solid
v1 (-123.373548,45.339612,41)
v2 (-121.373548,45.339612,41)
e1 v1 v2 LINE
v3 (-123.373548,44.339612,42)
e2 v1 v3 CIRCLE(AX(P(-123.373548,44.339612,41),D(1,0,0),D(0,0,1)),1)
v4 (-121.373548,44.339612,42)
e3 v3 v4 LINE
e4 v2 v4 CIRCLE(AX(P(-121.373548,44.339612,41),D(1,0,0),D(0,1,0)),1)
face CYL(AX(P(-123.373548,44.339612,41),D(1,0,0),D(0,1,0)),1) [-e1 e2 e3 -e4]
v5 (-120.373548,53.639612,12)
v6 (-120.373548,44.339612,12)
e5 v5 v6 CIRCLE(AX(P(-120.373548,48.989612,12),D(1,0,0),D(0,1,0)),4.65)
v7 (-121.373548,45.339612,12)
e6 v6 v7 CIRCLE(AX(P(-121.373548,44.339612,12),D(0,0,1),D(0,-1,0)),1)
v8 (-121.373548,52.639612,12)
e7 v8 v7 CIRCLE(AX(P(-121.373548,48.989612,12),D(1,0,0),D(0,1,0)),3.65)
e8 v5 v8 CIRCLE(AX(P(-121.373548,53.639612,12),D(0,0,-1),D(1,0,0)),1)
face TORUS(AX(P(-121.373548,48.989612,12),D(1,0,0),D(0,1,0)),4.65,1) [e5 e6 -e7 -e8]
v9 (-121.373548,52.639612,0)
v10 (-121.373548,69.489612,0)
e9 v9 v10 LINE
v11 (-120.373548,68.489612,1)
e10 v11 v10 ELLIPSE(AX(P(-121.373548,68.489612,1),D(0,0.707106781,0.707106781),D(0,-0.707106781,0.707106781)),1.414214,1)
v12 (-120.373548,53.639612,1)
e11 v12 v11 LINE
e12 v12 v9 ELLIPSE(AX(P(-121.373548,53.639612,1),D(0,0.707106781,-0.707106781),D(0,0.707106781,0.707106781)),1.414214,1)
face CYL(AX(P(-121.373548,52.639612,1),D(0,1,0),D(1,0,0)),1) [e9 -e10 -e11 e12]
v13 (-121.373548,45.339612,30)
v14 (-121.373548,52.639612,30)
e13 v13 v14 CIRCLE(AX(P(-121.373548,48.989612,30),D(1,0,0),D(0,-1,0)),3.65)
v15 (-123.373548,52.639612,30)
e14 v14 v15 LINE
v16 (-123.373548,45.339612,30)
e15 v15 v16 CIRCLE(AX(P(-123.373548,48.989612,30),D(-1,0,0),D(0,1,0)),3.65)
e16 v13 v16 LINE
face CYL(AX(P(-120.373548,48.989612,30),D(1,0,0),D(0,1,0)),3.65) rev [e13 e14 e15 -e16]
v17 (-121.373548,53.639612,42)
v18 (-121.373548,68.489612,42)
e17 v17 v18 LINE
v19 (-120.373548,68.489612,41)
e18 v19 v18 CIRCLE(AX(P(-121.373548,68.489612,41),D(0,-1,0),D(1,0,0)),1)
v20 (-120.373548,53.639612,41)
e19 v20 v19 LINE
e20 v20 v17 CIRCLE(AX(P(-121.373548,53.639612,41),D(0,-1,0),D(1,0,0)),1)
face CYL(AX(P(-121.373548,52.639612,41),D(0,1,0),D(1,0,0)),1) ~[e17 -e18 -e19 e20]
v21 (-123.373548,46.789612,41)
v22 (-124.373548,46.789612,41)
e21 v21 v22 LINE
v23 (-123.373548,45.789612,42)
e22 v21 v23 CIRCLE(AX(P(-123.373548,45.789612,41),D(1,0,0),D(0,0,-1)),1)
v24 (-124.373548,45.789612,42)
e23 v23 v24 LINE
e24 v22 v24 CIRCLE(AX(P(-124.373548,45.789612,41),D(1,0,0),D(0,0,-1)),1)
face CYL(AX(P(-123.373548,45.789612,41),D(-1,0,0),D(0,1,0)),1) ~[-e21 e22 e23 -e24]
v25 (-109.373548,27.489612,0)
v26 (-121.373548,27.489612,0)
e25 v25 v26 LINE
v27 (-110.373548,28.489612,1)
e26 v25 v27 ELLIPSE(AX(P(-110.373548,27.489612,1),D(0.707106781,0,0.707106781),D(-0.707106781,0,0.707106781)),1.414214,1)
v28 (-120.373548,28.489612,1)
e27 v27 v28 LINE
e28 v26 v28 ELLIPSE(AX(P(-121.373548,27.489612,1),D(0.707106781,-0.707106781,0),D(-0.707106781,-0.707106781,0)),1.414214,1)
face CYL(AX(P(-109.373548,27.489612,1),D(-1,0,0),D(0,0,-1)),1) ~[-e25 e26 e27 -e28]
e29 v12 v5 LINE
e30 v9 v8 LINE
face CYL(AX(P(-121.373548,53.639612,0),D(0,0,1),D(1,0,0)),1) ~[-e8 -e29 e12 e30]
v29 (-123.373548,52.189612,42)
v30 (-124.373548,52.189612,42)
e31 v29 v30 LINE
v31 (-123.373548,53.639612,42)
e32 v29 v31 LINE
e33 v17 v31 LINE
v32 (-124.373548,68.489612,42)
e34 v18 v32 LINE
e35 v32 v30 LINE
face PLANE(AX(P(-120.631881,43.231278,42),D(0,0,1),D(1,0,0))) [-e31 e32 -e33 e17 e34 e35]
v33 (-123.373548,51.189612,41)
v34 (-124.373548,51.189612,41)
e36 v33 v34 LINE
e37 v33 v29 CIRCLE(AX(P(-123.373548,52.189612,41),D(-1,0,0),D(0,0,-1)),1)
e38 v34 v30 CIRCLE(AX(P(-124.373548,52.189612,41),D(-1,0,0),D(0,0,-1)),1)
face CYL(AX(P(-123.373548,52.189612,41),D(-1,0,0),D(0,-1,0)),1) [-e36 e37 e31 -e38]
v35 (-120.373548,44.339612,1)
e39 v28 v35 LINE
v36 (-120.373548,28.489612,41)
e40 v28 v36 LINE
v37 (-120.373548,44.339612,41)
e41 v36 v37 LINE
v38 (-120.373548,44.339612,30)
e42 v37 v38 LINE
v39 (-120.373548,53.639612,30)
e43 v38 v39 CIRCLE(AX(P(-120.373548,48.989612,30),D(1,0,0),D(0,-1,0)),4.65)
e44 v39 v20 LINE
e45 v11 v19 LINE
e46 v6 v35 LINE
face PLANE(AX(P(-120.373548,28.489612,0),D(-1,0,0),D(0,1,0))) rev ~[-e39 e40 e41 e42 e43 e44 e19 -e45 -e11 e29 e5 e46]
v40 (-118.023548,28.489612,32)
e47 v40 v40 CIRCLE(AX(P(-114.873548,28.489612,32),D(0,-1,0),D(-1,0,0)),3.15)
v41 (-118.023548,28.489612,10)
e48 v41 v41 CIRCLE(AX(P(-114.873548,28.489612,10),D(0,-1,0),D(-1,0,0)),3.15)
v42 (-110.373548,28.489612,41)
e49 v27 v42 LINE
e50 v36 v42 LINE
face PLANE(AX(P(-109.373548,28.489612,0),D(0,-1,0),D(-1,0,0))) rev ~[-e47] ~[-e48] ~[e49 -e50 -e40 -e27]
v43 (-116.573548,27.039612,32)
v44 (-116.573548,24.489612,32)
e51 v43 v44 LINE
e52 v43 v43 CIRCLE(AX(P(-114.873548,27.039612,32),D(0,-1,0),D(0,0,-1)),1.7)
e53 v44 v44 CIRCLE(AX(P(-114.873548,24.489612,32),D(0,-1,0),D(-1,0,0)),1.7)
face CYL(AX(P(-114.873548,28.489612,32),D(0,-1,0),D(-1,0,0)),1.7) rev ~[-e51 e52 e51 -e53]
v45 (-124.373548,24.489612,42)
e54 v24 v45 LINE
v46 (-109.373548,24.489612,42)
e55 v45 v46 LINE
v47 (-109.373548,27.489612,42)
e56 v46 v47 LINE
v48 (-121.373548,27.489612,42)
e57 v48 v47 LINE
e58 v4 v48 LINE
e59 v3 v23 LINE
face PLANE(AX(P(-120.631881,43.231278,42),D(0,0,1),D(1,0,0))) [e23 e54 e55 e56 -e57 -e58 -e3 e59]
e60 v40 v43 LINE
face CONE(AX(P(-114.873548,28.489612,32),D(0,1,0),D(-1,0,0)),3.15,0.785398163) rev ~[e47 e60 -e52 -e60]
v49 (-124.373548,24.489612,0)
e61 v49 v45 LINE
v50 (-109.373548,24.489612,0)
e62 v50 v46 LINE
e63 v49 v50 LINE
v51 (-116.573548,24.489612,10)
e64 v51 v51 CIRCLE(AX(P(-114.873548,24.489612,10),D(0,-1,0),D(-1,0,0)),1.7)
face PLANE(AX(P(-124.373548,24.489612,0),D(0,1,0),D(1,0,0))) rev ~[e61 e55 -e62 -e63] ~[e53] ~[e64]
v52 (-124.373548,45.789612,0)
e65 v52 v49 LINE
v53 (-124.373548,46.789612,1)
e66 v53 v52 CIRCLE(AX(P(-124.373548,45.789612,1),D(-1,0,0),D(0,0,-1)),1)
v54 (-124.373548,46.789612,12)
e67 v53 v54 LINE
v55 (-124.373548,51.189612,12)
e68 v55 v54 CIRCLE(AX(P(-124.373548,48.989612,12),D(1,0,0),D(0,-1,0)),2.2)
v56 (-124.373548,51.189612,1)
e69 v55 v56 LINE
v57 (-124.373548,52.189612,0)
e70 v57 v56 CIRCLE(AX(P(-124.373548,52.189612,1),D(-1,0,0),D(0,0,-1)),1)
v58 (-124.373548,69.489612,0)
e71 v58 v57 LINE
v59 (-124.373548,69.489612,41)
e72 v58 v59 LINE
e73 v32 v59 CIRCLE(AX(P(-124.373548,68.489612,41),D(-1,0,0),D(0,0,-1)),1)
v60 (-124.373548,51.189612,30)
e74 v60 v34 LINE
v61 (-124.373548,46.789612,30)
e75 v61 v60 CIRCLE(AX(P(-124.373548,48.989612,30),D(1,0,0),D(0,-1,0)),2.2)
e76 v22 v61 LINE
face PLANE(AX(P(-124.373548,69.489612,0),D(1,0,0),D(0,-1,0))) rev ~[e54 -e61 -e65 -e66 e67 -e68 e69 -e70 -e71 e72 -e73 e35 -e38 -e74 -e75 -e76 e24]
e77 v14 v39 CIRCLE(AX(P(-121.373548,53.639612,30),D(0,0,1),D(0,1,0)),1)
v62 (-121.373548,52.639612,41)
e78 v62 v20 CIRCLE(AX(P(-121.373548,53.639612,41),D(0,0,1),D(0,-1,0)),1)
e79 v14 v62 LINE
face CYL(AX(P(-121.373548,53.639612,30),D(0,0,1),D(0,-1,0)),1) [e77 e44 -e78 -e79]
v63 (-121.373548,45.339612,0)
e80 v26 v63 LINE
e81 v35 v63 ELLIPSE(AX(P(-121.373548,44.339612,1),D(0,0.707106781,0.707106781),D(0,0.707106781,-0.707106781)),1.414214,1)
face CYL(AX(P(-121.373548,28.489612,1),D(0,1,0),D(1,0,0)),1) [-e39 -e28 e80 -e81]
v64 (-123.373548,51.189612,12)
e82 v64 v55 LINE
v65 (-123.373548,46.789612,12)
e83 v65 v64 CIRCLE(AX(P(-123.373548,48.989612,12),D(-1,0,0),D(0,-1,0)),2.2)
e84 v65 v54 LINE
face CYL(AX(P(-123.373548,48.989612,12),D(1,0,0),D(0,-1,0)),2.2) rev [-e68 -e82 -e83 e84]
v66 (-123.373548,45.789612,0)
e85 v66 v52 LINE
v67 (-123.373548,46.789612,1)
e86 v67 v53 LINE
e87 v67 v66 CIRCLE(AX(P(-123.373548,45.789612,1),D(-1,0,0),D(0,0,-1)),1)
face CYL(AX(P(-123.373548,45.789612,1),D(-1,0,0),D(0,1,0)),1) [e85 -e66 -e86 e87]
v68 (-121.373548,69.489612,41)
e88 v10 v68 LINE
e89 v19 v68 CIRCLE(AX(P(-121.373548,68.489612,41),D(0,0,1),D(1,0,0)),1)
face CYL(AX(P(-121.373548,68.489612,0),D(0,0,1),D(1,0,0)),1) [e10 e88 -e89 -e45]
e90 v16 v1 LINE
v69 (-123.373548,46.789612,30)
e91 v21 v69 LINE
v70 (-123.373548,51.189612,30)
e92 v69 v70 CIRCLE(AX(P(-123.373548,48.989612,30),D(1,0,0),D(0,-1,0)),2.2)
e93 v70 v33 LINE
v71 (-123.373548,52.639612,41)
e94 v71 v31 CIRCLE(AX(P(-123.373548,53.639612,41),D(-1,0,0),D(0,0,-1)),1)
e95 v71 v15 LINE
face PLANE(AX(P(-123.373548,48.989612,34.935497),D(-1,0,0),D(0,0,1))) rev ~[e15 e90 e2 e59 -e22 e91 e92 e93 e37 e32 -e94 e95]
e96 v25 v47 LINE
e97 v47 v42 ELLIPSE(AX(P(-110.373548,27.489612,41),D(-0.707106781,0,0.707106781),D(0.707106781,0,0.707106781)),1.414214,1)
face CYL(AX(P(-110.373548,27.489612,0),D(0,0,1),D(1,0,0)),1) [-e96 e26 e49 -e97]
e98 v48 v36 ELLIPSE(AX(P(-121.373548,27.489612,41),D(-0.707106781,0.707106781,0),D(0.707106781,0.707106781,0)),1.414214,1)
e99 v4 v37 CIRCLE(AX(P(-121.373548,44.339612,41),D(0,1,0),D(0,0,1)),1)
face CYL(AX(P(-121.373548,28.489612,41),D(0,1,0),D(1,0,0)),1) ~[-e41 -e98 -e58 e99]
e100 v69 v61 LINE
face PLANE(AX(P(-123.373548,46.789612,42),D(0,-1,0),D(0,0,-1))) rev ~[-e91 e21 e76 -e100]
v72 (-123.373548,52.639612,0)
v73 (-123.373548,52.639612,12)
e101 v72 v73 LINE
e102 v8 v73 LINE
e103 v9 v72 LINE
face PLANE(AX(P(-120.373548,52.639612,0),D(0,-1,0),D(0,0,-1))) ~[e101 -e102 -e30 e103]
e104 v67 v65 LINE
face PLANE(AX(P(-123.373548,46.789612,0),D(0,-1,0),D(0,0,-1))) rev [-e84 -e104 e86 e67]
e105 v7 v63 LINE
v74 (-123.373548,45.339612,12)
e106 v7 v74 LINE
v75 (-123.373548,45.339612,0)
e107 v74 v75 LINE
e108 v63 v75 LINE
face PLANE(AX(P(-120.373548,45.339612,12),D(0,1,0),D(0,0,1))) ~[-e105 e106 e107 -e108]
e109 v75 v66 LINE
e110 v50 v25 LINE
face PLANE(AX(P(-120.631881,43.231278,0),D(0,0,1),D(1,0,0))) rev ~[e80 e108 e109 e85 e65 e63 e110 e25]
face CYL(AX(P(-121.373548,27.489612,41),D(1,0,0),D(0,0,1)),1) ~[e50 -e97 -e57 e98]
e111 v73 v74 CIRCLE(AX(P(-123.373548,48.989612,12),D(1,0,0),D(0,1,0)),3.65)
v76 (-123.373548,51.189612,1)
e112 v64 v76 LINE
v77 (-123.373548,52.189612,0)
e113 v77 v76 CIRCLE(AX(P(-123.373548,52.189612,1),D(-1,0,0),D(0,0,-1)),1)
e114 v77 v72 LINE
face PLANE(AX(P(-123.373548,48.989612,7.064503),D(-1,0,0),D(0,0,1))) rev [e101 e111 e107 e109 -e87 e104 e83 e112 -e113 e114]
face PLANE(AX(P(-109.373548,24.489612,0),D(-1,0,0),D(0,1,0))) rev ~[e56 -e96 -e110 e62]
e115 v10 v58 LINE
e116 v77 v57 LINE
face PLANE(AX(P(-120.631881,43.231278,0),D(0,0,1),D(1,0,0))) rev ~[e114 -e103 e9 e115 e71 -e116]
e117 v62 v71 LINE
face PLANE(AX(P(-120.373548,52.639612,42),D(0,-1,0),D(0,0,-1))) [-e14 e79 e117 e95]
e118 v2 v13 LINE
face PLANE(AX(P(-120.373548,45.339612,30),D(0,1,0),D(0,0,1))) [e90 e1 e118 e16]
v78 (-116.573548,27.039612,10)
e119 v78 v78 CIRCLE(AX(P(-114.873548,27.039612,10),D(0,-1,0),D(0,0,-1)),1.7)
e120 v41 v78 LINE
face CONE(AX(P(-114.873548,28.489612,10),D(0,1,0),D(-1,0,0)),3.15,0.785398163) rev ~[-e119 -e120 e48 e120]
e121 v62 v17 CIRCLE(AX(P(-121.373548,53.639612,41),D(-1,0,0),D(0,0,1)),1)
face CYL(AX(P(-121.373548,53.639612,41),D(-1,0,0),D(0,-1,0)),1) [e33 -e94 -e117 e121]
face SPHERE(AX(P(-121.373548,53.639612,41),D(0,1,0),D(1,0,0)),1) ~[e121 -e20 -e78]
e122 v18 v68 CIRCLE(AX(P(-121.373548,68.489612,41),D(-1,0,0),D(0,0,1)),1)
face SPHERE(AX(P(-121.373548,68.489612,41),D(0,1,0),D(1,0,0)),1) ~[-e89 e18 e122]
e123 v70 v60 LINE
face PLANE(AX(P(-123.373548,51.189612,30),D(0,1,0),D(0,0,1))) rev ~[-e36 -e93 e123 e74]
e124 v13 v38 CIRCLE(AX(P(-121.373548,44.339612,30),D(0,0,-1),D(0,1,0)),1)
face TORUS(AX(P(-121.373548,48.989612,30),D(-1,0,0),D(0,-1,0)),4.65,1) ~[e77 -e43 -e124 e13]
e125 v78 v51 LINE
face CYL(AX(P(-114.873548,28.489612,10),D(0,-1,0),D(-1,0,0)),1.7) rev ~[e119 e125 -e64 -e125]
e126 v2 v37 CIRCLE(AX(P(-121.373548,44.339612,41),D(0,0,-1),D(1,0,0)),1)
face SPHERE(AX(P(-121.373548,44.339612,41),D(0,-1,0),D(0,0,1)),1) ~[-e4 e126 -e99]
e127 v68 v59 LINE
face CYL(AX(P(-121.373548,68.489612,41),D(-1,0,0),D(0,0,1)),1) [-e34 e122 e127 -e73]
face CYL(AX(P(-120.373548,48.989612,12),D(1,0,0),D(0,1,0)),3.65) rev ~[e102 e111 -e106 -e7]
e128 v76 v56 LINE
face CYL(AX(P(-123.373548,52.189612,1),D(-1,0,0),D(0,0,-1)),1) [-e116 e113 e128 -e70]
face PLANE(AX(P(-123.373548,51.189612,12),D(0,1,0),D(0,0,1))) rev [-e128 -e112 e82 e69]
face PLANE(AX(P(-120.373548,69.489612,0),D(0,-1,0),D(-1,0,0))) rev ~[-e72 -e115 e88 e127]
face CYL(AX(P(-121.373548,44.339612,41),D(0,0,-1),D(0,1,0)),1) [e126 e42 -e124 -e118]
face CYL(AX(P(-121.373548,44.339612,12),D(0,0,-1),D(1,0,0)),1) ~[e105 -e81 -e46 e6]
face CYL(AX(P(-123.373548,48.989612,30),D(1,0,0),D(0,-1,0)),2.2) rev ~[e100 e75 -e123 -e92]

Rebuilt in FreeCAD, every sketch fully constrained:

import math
import FreeCAD as App
import Part
import Sketcher
Q = App.Units.Quantity


def edges_at(feature, points):
    """Names of the edges that pass closest to the given points."""
    edges = feature.Shape.Edges
    near = lambda p: min(range(len(edges)), key=lambda i: edges[i].distToShape(Part.Vertex(*p))[0])
    return sorted({f"Edge{near(p) + 1}" for p in points})


def add_polygon(sketch, points):
    """Adds a closed chain of lines whose ends are joined by coincident constraints."""
    first, n = sketch.GeometryCount, len(points)
    for a, b in zip(points, points[1:] + points[:1]):
        sketch.addGeometry(Part.LineSegment(App.Vector(*a, 0), App.Vector(*b, 0)), False)
    for i in range(n):
        sketch.addConstraint(Sketcher.Constraint("Coincident", first + i, 2, first + (i + 1) % n, 1))

doc = App.newDocument("Part")
body = doc.addObject("PartDesign::Body", "Body")

# Sketch on XY plane
sketch1 = doc.addObject("Sketcher::SketchObject", "Sketch")
body.addObject(sketch1)
sketch1.AttachmentSupport = (doc.XY_Plane, [""])
sketch1.MapMode = "FlatFace"
add_polygon(sketch1, [(-124.4, 69.5), (-124.4, 24.5), (-109.4, 24.5), (-109.4, 28.5), (-120.4, 28.5), (-120.4, 69.5)])  # lines 0-5
sketch1.addConstraint(Sketcher.Constraint("Vertical", 0))
sketch1.addConstraint(Sketcher.Constraint("Horizontal", 1))
sketch1.addConstraint(Sketcher.Constraint("Vertical", 2))
sketch1.addConstraint(Sketcher.Constraint("Horizontal", 3))
sketch1.addConstraint(Sketcher.Constraint("Vertical", 4))
sketch1.addConstraint(Sketcher.Constraint("Horizontal", 5))
sketch1.addConstraint(Sketcher.Constraint("Equal", 5, 2))
sketch1.addConstraint(Sketcher.Constraint("DistanceX", 1, 1, 1, 2, Q("15 mm")))
sketch1.addConstraint(Sketcher.Constraint("DistanceX", 3, 2, 3, 1, Q("11 mm")))
sketch1.addConstraint(Sketcher.Constraint("DistanceY", 0, 2, 0, 1, Q("45 mm")))
sketch1.addConstraint(Sketcher.Constraint("DistanceX", 0, 2, -1, 1, Q("124.373548 mm")))
sketch1.addConstraint(Sketcher.Constraint("DistanceY", -1, 1, 0, 2, Q("24.489612 mm")))
pad1 = doc.addObject("PartDesign::Pad", "Pad")
body.addObject(pad1)
pad1.Profile = sketch1
pad1.Length = 42

# Sketch on YZ plane
sketch2 = doc.addObject("Sketcher::SketchObject", "Sketch001")
body.addObject(sketch2)
sketch2.AttachmentSupport = (doc.YZ_Plane, [""])
sketch2.MapMode = "FlatFace"
sketch2.AttachmentOffset = App.Placement(App.Vector(0, 0, -120.373548), App.Rotation())
sketch2.addGeometry(Part.LineSegment(App.Vector(52.6, 30, 0), App.Vector(52.6, 42, 0)), False)
sketch2.addGeometry(Part.LineSegment(App.Vector(52.6, 42, 0), App.Vector(45.3, 42, 0)), False)
sketch2.addGeometry(Part.LineSegment(App.Vector(45.3, 42, 0), App.Vector(45.3, 30, 0)), False)
sketch2.addGeometry(Part.ArcOfCircle(Part.Circle(App.Vector(49, 30, 0), App.Vector(0, 0, 1), 3.6), math.radians(180), math.radians(360)), False)
sketch2.addConstraint(Sketcher.Constraint("Coincident", 0, 2, 1, 1))
sketch2.addConstraint(Sketcher.Constraint("Coincident", 1, 2, 2, 1))
sketch2.addConstraint(Sketcher.Constraint("Tangent", 2, 2, 3, 1))
sketch2.addConstraint(Sketcher.Constraint("Tangent", 3, 2, 0, 1))
sketch2.addConstraint(Sketcher.Constraint("Vertical", 0))
sketch2.addConstraint(Sketcher.Constraint("Horizontal", 1))
sketch2.addConstraint(Sketcher.Constraint("Vertical", 2))
sketch2.addConstraint(Sketcher.Constraint("DistanceY", 0, 1, 0, 2, Q("12 mm")))
sketch2.addConstraint(Sketcher.Constraint("Radius", 3, Q("3.65 mm")))
sketch2.addConstraint(Sketcher.Constraint("DistanceY", -1, 1, 3, 3, Q("30 mm")))
sketch2.addConstraint(Sketcher.Constraint("DistanceX", -1, 1, 3, 3, Q("48.989612 mm")))
pocket1 = doc.addObject("PartDesign::Pocket", "Pocket")
body.addObject(pocket1)
pocket1.Profile = sketch2
pocket1.Length = 3

# Sketch on YZ plane
sketch3 = doc.addObject("Sketcher::SketchObject", "Sketch002")
body.addObject(sketch3)
sketch3.AttachmentSupport = (doc.YZ_Plane, [""])
sketch3.MapMode = "FlatFace"
sketch3.AttachmentOffset = App.Placement(App.Vector(0, 0, -123.373548), App.Rotation())
sketch3.addGeometry(Part.LineSegment(App.Vector(51.2, 42, 0), App.Vector(46.8, 42, 0)), False)
sketch3.addGeometry(Part.LineSegment(App.Vector(46.8, 42, 0), App.Vector(46.8, 30, 0)), False)
sketch3.addGeometry(Part.ArcOfCircle(Part.Circle(App.Vector(49, 30, 0), App.Vector(0, 0, 1), 2.2), math.radians(180), math.radians(360)), False)
sketch3.addGeometry(Part.LineSegment(App.Vector(51.2, 30, 0), App.Vector(51.2, 42, 0)), False)
sketch3.addConstraint(Sketcher.Constraint("Coincident", 0, 2, 1, 1))
sketch3.addConstraint(Sketcher.Constraint("Tangent", 1, 2, 2, 1))
sketch3.addConstraint(Sketcher.Constraint("Tangent", 2, 2, 3, 1))
sketch3.addConstraint(Sketcher.Constraint("Coincident", 3, 2, 0, 1))
sketch3.addConstraint(Sketcher.Constraint("Horizontal", 0))
sketch3.addConstraint(Sketcher.Constraint("Vertical", 1))
sketch3.addConstraint(Sketcher.Constraint("Vertical", 3))
sketch3.addConstraint(Sketcher.Constraint("Radius", 2, Q("2.2 mm")))
sketch3.addConstraint(Sketcher.Constraint("DistanceY", 1, 2, 1, 1, Q("12 mm")))
sketch3.addConstraint(Sketcher.Constraint("DistanceY", -1, 1, 2, 3, Q("30 mm")))
sketch3.addConstraint(Sketcher.Constraint("DistanceX", -1, 1, 2, 3, Q("48.989612 mm")))
pocket2 = doc.addObject("PartDesign::Pocket", "Pocket001")
body.addObject(pocket2)
pocket2.Profile = sketch3
pocket2.Type = "ThroughAll"
doc.recompute()

datumplane = doc.addObject("PartDesign::Plane", "DatumPlane")
body.addObject(datumplane)
datumplane.AttachmentSupport = (doc.XY_Plane, [""])
datumplane.MapMode = "FlatFace"
datumplane.AttachmentOffset = App.Placement(App.Vector(0, 0, 21), App.Rotation())
mirrored = doc.addObject("PartDesign::Mirrored", "Mirrored")
body.addObject(mirrored)
mirrored.Originals = [pocket1, pocket2]
mirrored.MirrorPlane = (datumplane, [""])
body.Tip = mirrored

# Sketch on XZ plane
sketch4 = doc.addObject("Sketcher::SketchObject", "Sketch003")
body.addObject(sketch4)
sketch4.AttachmentSupport = (doc.XZ_Plane, [""])
sketch4.MapMode = "FlatFace"
sketch4.AttachmentOffset = App.Placement(App.Vector(0, 0, -28.489612), App.Rotation())
sketch4.addGeometry(Part.Circle(App.Vector(-114.9, 32, 0), App.Vector(0, 0, 1), 1.7), False)
sketch4.addGeometry(Part.Circle(App.Vector(-114.9, 10, 0), App.Vector(0, 0, 1), 1.7), False)
sketch4.addConstraint(Sketcher.Constraint("Equal", 0, 1))
sketch4.addConstraint(Sketcher.Constraint("Vertical", 0, 3, 1, 3))
sketch4.addConstraint(Sketcher.Constraint("Diameter", 0, Q("3.4 mm")))
sketch4.addConstraint(Sketcher.Constraint("DistanceY", -1, 1, 0, 3, Q("32 mm")))
sketch4.addConstraint(Sketcher.Constraint("DistanceY", -1, 1, 1, 3, Q("10 mm")))
sketch4.addConstraint(Sketcher.Constraint("DistanceX", 0, 3, -1, 1, Q("114.873548 mm")))
doc.recompute()
hole = doc.addObject("PartDesign::Hole", "Hole")
body.addObject(hole)
hole.Profile = sketch4
hole.ThreadType = "None"
hole.Diameter = 3.4
hole.DepthType = "ThroughAll"
hole.HoleCutType = "Countersink"
hole.HoleCutDiameter = 6.3
hole.HoleCutCountersinkAngle = 90
hole.Reversed = True
doc.recompute()

fillet = doc.addObject("PartDesign::Fillet", "Fillet")
body.addObject(fillet)
fillet.Base = (hole, edges_at(hole, [(-120.374, 36.915, 42)]))
fillet.Radius = 1
doc.recompute()

fillet2 = doc.addObject("PartDesign::Fillet", "Fillet001")
body.addObject(fillet2)
fillet2.Base = (fillet, edges_at(fillet, [(-120.374, 61.065, 42)]))
fillet2.Radius = 1
doc.recompute()

fillet3 = doc.addObject("PartDesign::Fillet", "Fillet002")
body.addObject(fillet3)
fillet3.Base = (fillet2, edges_at(fillet2, [
    (-120.666, 52.64, 41.707),
    (-122.374, 45.34, 42),
    (-122.374, 52.64, 42),
    (-120.374, 48.99, 26.35),
    (-120.374, 52.64, 35.5),
    (-120.374, 45.34, 35.5),
    (-120.666, 45.34, 41.707),
]))
fillet3.Radius = 1
doc.recompute()

fillet4 = doc.addObject("PartDesign::Fillet", "Fillet003")
body.addObject(fillet4)
fillet4.Base = (fillet3, edges_at(fillet3, [
    (-122.874, 69.49, 42),
    (-120.666, 69.49, 41.707),
    (-115.374, 28.49, 42),
    (-109.374, 28.49, 21),
    (-114.874, 28.49, 0),
    (-120.374, 36.915, 0),
    (-120.374, 48.99, 15.65),
    (-120.374, 45.34, 6),
    (-120.374, 52.64, 6),
    (-120.374, 61.065, 0),
    (-120.374, 69.49, 20.5),
]))
fillet4.Radius = 1
doc.recompute()

fillet5 = doc.addObject("PartDesign::Fillet", "Fillet004")
body.addObject(fillet5)
fillet5.Base = (fillet4, edges_at(fillet4, [(-123.874, 51.19, 42)]))
fillet5.Radius = 1
doc.recompute()

fillet6 = doc.addObject("PartDesign::Fillet", "Fillet005")
body.addObject(fillet6)
fillet6.Base = (fillet5, edges_at(fillet5, [(-123.874, 46.79, 42), (-123.874, 51.19, 0), (-123.874, 46.79, 0)]))
fillet6.Radius = 1

doc.recompute()
